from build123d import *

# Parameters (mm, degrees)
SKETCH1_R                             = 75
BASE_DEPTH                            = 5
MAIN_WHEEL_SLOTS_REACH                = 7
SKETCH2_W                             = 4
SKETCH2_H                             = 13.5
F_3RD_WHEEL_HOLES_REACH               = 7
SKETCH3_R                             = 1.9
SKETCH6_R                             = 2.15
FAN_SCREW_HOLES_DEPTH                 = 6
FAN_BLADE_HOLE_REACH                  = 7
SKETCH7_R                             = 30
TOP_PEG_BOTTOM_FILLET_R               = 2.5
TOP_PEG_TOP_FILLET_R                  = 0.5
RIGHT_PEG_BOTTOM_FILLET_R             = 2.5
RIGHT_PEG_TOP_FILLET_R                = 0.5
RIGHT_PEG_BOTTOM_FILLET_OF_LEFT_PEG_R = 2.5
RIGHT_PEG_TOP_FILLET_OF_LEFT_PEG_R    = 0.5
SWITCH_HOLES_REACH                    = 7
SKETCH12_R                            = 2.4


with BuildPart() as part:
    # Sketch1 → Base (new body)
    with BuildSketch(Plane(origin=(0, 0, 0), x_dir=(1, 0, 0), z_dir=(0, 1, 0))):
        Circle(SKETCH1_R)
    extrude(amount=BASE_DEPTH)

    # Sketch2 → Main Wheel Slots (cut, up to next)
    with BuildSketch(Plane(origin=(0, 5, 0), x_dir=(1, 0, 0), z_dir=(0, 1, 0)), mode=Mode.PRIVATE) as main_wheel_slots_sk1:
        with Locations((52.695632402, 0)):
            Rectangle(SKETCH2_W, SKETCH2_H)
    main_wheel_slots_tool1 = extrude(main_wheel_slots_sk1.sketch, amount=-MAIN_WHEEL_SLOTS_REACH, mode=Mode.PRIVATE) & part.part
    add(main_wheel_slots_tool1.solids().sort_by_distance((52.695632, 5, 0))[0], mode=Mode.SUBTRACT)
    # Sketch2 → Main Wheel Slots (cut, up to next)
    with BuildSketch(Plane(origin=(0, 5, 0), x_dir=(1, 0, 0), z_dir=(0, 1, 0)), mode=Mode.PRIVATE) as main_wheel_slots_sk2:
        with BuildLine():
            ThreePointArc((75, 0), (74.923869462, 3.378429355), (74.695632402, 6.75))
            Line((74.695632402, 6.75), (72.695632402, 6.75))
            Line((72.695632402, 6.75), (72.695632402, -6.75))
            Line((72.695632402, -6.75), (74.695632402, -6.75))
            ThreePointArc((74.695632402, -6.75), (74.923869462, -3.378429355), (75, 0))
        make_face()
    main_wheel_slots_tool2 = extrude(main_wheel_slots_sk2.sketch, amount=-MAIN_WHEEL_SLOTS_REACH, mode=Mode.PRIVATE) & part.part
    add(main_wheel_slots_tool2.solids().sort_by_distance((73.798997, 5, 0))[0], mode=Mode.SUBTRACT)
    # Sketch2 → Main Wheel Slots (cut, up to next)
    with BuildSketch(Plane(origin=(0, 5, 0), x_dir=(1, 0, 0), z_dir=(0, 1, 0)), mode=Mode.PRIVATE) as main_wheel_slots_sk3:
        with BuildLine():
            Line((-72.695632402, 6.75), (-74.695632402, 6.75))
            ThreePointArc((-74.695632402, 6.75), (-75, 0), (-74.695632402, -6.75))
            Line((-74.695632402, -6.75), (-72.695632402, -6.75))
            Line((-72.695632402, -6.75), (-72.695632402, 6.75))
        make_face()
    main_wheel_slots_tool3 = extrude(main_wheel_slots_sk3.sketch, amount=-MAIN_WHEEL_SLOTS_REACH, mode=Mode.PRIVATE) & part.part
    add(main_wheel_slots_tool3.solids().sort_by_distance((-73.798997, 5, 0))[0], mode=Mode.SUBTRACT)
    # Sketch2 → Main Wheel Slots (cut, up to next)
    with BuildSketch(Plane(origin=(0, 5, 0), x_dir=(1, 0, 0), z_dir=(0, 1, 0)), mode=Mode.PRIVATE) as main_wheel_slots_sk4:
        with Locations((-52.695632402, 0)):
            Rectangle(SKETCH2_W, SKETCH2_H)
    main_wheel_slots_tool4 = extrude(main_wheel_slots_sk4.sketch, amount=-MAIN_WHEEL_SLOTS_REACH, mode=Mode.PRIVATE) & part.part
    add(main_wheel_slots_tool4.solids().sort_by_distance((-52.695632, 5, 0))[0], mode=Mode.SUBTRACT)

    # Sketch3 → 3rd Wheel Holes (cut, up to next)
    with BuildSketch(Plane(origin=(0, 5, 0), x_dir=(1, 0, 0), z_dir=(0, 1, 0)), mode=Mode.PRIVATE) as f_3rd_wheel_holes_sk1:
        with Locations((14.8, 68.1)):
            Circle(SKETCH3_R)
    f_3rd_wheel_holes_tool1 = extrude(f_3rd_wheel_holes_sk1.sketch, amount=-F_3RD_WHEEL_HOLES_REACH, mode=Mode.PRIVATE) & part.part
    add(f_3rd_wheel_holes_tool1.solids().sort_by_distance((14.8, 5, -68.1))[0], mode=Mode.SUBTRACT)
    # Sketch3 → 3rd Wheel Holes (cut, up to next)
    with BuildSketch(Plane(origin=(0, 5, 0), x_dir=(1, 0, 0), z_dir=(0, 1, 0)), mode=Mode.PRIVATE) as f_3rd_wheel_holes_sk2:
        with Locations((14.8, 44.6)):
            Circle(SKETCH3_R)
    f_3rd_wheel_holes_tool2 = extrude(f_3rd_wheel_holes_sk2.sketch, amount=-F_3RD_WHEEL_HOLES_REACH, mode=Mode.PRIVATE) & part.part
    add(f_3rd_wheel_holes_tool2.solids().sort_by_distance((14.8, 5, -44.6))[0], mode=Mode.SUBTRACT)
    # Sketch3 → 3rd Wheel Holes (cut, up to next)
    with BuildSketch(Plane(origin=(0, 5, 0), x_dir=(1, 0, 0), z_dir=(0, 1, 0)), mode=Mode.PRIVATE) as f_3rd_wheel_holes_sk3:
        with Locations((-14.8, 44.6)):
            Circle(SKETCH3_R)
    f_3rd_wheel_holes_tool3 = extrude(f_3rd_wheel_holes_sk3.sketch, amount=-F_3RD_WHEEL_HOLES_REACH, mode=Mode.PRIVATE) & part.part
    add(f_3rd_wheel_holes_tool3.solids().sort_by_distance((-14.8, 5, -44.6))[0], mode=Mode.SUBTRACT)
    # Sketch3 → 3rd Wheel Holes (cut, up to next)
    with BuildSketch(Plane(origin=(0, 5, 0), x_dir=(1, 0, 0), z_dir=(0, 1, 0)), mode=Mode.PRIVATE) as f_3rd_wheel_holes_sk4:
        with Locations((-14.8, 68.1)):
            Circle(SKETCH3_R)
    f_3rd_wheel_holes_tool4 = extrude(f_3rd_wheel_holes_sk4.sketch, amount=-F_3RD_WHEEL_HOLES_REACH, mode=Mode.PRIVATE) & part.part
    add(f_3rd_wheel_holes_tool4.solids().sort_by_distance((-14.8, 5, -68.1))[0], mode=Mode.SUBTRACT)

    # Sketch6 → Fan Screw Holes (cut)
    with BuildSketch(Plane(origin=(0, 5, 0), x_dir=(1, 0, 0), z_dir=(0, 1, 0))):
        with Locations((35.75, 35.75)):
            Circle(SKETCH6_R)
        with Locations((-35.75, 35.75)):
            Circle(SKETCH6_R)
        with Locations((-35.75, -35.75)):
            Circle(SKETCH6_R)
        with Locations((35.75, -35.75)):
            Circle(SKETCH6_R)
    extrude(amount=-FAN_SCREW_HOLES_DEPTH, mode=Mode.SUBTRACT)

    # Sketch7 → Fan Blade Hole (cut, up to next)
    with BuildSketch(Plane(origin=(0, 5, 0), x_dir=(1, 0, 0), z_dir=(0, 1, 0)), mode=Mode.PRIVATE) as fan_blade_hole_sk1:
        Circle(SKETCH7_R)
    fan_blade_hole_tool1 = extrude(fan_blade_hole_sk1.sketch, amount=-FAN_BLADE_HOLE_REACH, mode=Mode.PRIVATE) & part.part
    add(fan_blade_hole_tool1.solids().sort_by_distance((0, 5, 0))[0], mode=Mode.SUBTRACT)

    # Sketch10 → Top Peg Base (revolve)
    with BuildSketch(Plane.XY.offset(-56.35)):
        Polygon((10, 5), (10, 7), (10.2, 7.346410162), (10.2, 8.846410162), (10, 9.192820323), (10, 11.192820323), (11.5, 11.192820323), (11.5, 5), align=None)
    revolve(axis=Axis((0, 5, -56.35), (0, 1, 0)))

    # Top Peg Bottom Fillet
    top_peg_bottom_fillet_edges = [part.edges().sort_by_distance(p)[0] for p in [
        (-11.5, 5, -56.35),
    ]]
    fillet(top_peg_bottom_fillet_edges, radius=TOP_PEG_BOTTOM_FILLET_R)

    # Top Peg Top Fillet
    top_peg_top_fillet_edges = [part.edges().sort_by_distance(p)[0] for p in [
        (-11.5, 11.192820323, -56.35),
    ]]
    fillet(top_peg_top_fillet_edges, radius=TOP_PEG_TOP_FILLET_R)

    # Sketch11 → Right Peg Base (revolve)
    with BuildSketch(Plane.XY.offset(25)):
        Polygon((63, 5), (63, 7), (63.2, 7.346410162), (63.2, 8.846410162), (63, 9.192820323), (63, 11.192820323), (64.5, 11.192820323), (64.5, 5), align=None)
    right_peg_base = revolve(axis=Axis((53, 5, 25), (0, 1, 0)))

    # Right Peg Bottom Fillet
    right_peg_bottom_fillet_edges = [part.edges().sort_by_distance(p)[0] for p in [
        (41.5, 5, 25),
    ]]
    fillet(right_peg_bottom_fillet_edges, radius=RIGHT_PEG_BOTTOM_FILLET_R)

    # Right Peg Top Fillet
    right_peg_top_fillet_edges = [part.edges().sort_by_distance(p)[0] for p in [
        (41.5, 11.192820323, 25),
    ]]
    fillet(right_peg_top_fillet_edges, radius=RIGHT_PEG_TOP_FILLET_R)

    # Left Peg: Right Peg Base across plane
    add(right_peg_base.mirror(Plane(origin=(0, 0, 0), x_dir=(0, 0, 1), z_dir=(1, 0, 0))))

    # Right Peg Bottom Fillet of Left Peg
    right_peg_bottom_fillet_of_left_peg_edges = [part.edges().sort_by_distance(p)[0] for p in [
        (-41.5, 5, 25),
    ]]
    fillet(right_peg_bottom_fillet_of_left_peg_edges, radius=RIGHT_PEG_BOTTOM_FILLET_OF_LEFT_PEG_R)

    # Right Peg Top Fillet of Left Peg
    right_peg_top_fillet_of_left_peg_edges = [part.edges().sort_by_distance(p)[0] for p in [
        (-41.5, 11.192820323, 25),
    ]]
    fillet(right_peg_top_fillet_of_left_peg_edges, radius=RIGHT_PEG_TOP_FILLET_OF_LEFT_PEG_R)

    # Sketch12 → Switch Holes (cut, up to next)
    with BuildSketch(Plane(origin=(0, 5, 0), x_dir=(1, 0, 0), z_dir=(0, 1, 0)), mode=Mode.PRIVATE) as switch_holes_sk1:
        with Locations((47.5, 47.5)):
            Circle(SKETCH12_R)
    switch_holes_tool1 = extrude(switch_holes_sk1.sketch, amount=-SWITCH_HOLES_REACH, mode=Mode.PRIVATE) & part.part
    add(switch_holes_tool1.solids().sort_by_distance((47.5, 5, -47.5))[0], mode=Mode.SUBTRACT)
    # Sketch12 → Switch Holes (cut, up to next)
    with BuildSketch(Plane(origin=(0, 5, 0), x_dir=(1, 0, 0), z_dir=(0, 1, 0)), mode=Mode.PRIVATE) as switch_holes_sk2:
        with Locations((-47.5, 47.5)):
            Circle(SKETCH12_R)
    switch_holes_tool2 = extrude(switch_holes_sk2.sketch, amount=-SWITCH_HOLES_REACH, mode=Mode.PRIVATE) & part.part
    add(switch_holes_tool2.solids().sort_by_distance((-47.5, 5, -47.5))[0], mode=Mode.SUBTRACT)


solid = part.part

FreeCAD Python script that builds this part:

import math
import FreeCAD as App
import Part
import Sketcher
Q = App.Units.Quantity


def edges_at(feature, points):
    """Names of the edges that pass closest to the given points."""
    edges = feature.Shape.Edges
    near = lambda p: min(range(len(edges)), key=lambda i: edges[i].distToShape(Part.Vertex(*p))[0])
    return sorted({f"Edge{near(p) + 1}" for p in points})


def add_polygon(sketch, points):
    """Adds a closed chain of lines whose ends are joined by coincident constraints."""
    first, n = sketch.GeometryCount, len(points)
    for a, b in zip(points, points[1:] + points[:1]):
        sketch.addGeometry(Part.LineSegment(App.Vector(*a, 0), App.Vector(*b, 0)), False)
    for i in range(n):
        sketch.addConstraint(Sketcher.Constraint("Coincident", first + i, 2, first + (i + 1) % n, 1))

doc = App.newDocument("Part")
body = doc.addObject("PartDesign::Body", "Body")

# Sketch on XZ plane
sketch1 = body.newObject("Sketcher::SketchObject", "Sketch")
sketch1.AttachmentSupport = (doc.getObject("XZ_Plane"), [""])
sketch1.MapMode = "FlatFace"
sketch1.addGeometry(Part.Circle(App.Vector(0, 0, 0), App.Vector(0, 0, 1), 75), False)
sketch1.addConstraint([
    Sketcher.Constraint("Coincident", 0, 3, -1, 1),
    Sketcher.Constraint("Diameter", 0, 150.0),
])
pad1 = body.newObject("PartDesign::Pad", "Pad")
pad1.Profile = sketch1
pad1.Length = 5
pad1.Reversed = True

# Sketch on XZ plane
sketch2 = body.newObject("Sketcher::SketchObject", "Sketch001")
sketch2.AttachmentSupport = (doc.getObject("XZ_Plane"), [""])
sketch2.MapMode = "FlatFace"
sketch2.AttachmentOffset = App.Placement(App.Vector(0, 0, -5), App.Rotation())
add_polygon(sketch2, [(50.7, -6.8), (50.7, 6.8), (54.7, 6.8), (54.7, -6.8)])  # lines 0-3
sketch2.addConstraint([
    Sketcher.Constraint("Vertical", 0),
    Sketcher.Constraint("Horizontal", 1),
    Sketcher.Constraint("Vertical", 2),
    Sketcher.Constraint("Horizontal", 3),
    Sketcher.Constraint("DistanceX", 1, 1, 1, 2, 4.0),
    Sketcher.Constraint("DistanceY", 0, 1, 0, 2, 13.5),
    Sketcher.Constraint("DistanceY", -1, 1, 0, 2, 6.75),
    Sketcher.Constraint("DistanceX", -1, 1, 0, 2, 50.695632),
])
pocket1 = body.newObject("PartDesign::Pocket", "Pocket")
pocket1.Profile = sketch2
pocket1.Type = "UpToFirst"
pocket1.Reversed = True

# Sketch on XZ plane
sketch3 = body.newObject("Sketcher::SketchObject", "Sketch002")
sketch3.AttachmentSupport = (doc.getObject("XZ_Plane"), [""])
sketch3.MapMode = "FlatFace"
sketch3.AttachmentOffset = App.Placement(App.Vector(0, 0, -5), App.Rotation())
sketch3.addGeometry([
    Part.ArcOfCircle(Part.Circle(App.Vector(0, 0, 0), App.Vector(0, 0, 1), 75), math.radians(-5.16), math.radians(0)),  # 0
    Part.LineSegment(App.Vector(74.7, -6.8, 0), App.Vector(72.7, -6.8, 0)),  # 1
    Part.LineSegment(App.Vector(72.7, -6.8, 0), App.Vector(72.7, 6.8, 0)),  # 2
    Part.LineSegment(App.Vector(72.7, 6.8, 0), App.Vector(74.7, 6.8, 0)),  # 3
    Part.ArcOfCircle(Part.Circle(App.Vector(0, 0, 0), App.Vector(0, 0, 1), 75), math.radians(0), math.radians(5.16)),  # 4
], False)
sketch3.addConstraint([
    Sketcher.Constraint("Coincident", 0, 1, 1, 1),
    Sketcher.Constraint("Coincident", 1, 2, 2, 1),
    Sketcher.Constraint("Coincident", 2, 2, 3, 1),
    Sketcher.Constraint("Coincident", 3, 2, 4, 2),
    Sketcher.Constraint("Tangent", 4, 1, 0, 2),
    Sketcher.Constraint("Horizontal", 1),
    Sketcher.Constraint("Vertical", 2),
    Sketcher.Constraint("Horizontal", 3),
    Sketcher.Constraint("Coincident", 0, 3, -1, 1),
    Sketcher.Constraint("Equal", 0, 4),
    Sketcher.Constraint("PointOnObject", 4, 1, -1),
    Sketcher.Constraint("Vertical", 0, 1, 3, 2),
    Sketcher.Constraint("Radius", 0, 74.999999),
    Sketcher.Constraint("DistanceX", 1, 2, 1, 1, 2.0),
    Sketcher.Constraint("DistanceY", 2, 1, 2, 2, 13.5),
])
pocket2 = body.newObject("PartDesign::Pocket", "Pocket001")
pocket2.Profile = sketch3
pocket2.Type = "UpToFirst"
pocket2.Reversed = True

# Sketch on XZ plane
sketch4 = body.newObject("Sketcher::SketchObject", "Sketch003")
sketch4.AttachmentSupport = (doc.getObject("XZ_Plane"), [""])
sketch4.MapMode = "FlatFace"
sketch4.AttachmentOffset = App.Placement(App.Vector(0, 0, -5), App.Rotation())
sketch4.addGeometry([
    Part.LineSegment(App.Vector(-72.7, -6.8, 0), App.Vector(-74.7, -6.8, 0)),
    Part.ArcOfCircle(Part.Circle(App.Vector(0, 0, 0), App.Vector(0, 0, 1), 75), math.radians(174.84), math.radians(185.16)),
    Part.LineSegment(App.Vector(-74.7, 6.8, 0), App.Vector(-72.7, 6.8, 0)),
    Part.LineSegment(App.Vector(-72.7, 6.8, 0), App.Vector(-72.7, -6.8, 0)),
], False)
sketch4.addConstraint([
    Sketcher.Constraint("Coincident", 0, 2, 1, 2),
    Sketcher.Constraint("Coincident", 1, 1, 2, 1),
    Sketcher.Constraint("Coincident", 2, 2, 3, 1),
    Sketcher.Constraint("Coincident", 3, 2, 0, 1),
    Sketcher.Constraint("Horizontal", 0),
    Sketcher.Constraint("Horizontal", 2),
    Sketcher.Constraint("Vertical", 3),
    Sketcher.Constraint("Coincident", 1, 3, -1, 1),
    Sketcher.Constraint("Vertical", 0, 2, 1, 1),
    Sketcher.Constraint("Radius", 1, 75.0),
    Sketcher.Constraint("DistanceX", 0, 2, 0, 1, 2.0),
    Sketcher.Constraint("DistanceY", 3, 2, 3, 1, 13.5),
])
pocket3 = body.newObject("PartDesign::Pocket", "Pocket002")
pocket3.Profile = sketch4
pocket3.Type = "UpToFirst"
pocket3.Reversed = True

# Sketch on XZ plane
sketch5 = body.newObject("Sketcher::SketchObject", "Sketch004")
sketch5.AttachmentSupport = (doc.getObject("XZ_Plane"), [""])
sketch5.MapMode = "FlatFace"
sketch5.AttachmentOffset = App.Placement(App.Vector(0, 0, -5), App.Rotation())
add_polygon(sketch5, [(-54.7, -6.8), (-54.7, 6.8), (-50.7, 6.8), (-50.7, -6.8)])  # lines 0-3
sketch5.addConstraint([
    Sketcher.Constraint("Vertical", 0),
    Sketcher.Constraint("Horizontal", 1),
    Sketcher.Constraint("Vertical", 2),
    Sketcher.Constraint("Horizontal", 3),
    Sketcher.Constraint("DistanceX", 1, 1, 1, 2, 4.0),
    Sketcher.Constraint("DistanceY", 0, 1, 0, 2, 13.5),
    Sketcher.Constraint("DistanceY", -1, 1, 0, 2, 6.75),
    Sketcher.Constraint("DistanceX", 0, 2, -1, 1, 54.695632),
])
pocket4 = body.newObject("PartDesign::Pocket", "Pocket003")
pocket4.Profile = sketch5
pocket4.Type = "UpToFirst"
pocket4.Reversed = True

# Sketch on XZ plane
sketch6 = body.newObject("Sketcher::SketchObject", "Sketch005")
sketch6.AttachmentSupport = (doc.getObject("XZ_Plane"), [""])
sketch6.MapMode = "FlatFace"
sketch6.AttachmentOffset = App.Placement(App.Vector(0, 0, -5), App.Rotation())
sketch6.addGeometry(Part.Circle(App.Vector(14.8, -68.1, 0), App.Vector(0, 0, 1), 1.9), False)
sketch6.addConstraint([
    Sketcher.Constraint("Diameter", 0, 3.8),
    Sketcher.Constraint("DistanceX", -1, 1, 0, 3, 14.8),
    Sketcher.Constraint("DistanceY", 0, 3, -1, 1, 68.1),
])
pocket5 = body.newObject("PartDesign::Pocket", "Pocket004")
pocket5.Profile = sketch6
pocket5.Type = "UpToFirst"
pocket5.Reversed = True

# Sketch on XZ plane
sketch7 = body.newObject("Sketcher::SketchObject", "Sketch006")
sketch7.AttachmentSupport = (doc.getObject("XZ_Plane"), [""])
sketch7.MapMode = "FlatFace"
sketch7.AttachmentOffset = App.Placement(App.Vector(0, 0, -5), App.Rotation())
sketch7.addGeometry(Part.Circle(App.Vector(14.8, -44.6, 0), App.Vector(0, 0, 1), 1.9), False)
sketch7.addConstraint([
    Sketcher.Constraint("Diameter", 0, 3.8),
    Sketcher.Constraint("DistanceX", -1, 1, 0, 3, 14.8),
    Sketcher.Constraint("DistanceY", 0, 3, -1, 1, 44.6),
])
pocket6 = body.newObject("PartDesign::Pocket", "Pocket005")
pocket6.Profile = sketch7
pocket6.Type = "UpToFirst"
pocket6.Reversed = True

# Sketch on XZ plane
sketch8 = body.newObject("Sketcher::SketchObject", "Sketch007")
sketch8.AttachmentSupport = (doc.getObject("XZ_Plane"), [""])
sketch8.MapMode = "FlatFace"
sketch8.AttachmentOffset = App.Placement(App.Vector(0, 0, -5), App.Rotation())
sketch8.addGeometry(Part.Circle(App.Vector(-14.8, -44.6, 0), App.Vector(0, 0, 1), 1.9), False)
sketch8.addConstraint([
    Sketcher.Constraint("Diameter", 0, 3.8),
    Sketcher.Constraint("DistanceX", 0, 3, -1, 1, 14.8),
    Sketcher.Constraint("DistanceY", 0, 3, -1, 1, 44.6),
])
pocket7 = body.newObject("PartDesign::Pocket", "Pocket006")
pocket7.Profile = sketch8
pocket7.Type = "UpToFirst"
pocket7.Reversed = True

# Sketch on XZ plane
sketch9 = body.newObject("Sketcher::SketchObject", "Sketch008")
sketch9.AttachmentSupport = (doc.getObject("XZ_Plane"), [""])
sketch9.MapMode = "FlatFace"
sketch9.AttachmentOffset = App.Placement(App.Vector(0, 0, -5), App.Rotation())
sketch9.addGeometry(Part.Circle(App.Vector(-14.8, -68.1, 0), App.Vector(0, 0, 1), 1.9), False)
sketch9.addConstraint([
    Sketcher.Constraint("Diameter", 0, 3.8),
    Sketcher.Constraint("DistanceX", 0, 3, -1, 1, 14.8),
    Sketcher.Constraint("DistanceY", 0, 3, -1, 1, 68.1),
])
pocket8 = body.newObject("PartDesign::Pocket", "Pocket007")
pocket8.Profile = sketch9
pocket8.Type = "UpToFirst"
pocket8.Reversed = True

# Sketch on XZ plane
sketch10 = body.newObject("Sketcher::SketchObject", "Sketch009")
sketch10.AttachmentSupport = (doc.getObject("XZ_Plane"), [""])
sketch10.MapMode = "FlatFace"
sketch10.AttachmentOffset = App.Placement(App.Vector(0, 0, -5), App.Rotation())
sketch10.addGeometry([
    Part.Circle(App.Vector(35.8, -35.8, 0), App.Vector(0, 0, 1), 2.1),
    Part.Circle(App.Vector(-35.8, -35.8, 0), App.Vector(0, 0, 1), 2.1),
    Part.Circle(App.Vector(-35.8, 35.8, 0), App.Vector(0, 0, 1), 2.1),
    Part.Circle(App.Vector(35.8, 35.8, 0), App.Vector(0, 0, 1), 2.1),
], False)
sketch10.addConstraint([
    Sketcher.Constraint("Equal", 0, 1),
    Sketcher.Constraint("Equal", 1, 2),
    Sketcher.Constraint("Equal", 2, 3),
    Sketcher.Constraint("Symmetric", 0, 3, 2, 3, -1, 1),
    Sketcher.Constraint("Symmetric", 1, 3, 3, 3, -1, 1),
    Sketcher.Constraint("Symmetric", 0, 3, 1, 3, -2),
    Sketcher.Constraint("Diameter", 0, 4.3),
    Sketcher.Constraint("DistanceX", 1, 3, 0, 3, 71.5),
    Sketcher.Constraint("DistanceY", 1, 3, 2, 3, 71.5),
])
pocket9 = body.newObject("PartDesign::Pocket", "Pocket008")
pocket9.Profile = sketch10
pocket9.Length = 6
pocket9.Reversed = True

# Sketch on XZ plane
sketch11 = body.newObject("Sketcher::SketchObject", "Sketch010")
sketch11.AttachmentSupport = (doc.getObject("XZ_Plane"), [""])
sketch11.MapMode = "FlatFace"
sketch11.AttachmentOffset = App.Placement(App.Vector(0, 0, -5), App.Rotation())
sketch11.addGeometry(Part.Circle(App.Vector(0, 0, 0), App.Vector(0, 0, 1), 30), False)
sketch11.addConstraint([
    Sketcher.Constraint("Coincident", 0, 3, -1, 1),
    Sketcher.Constraint("Diameter", 0, 60.0),
])
pocket10 = body.newObject("PartDesign::Pocket", "Pocket009")
pocket10.Profile = sketch11
pocket10.Type = "UpToFirst"
pocket10.Reversed = True

# Sketch on XY plane
sketch12 = body.newObject("Sketcher::SketchObject", "Sketch011")
sketch12.AttachmentSupport = (doc.getObject("XY_Plane"), [""])
sketch12.MapMode = "FlatFace"
sketch12.AttachmentOffset = App.Placement(App.Vector(0, 0, -56.35), App.Rotation())
add_polygon(sketch12, [(10, 7), (10, 5), (11.5, 5), (11.5, 11.19), (10, 11.19), (10, 9.19), (10.2, 8.85), (10.2, 7.35)])  # lines 0-7
sketch12.addConstraint([
    Sketcher.Constraint("Vertical", 0),
    Sketcher.Constraint("Horizontal", 1),
    Sketcher.Constraint("Vertical", 2),
    Sketcher.Constraint("Horizontal", 3),
    Sketcher.Constraint("Vertical", 4),
    Sketcher.Constraint("Vertical", 6),
    Sketcher.Constraint("Vertical", 0, 2, 3, 2),
    Sketcher.Constraint("Equal", 0, 4),
    Sketcher.Constraint("Equal", 3, 6),
    Sketcher.Constraint("Equal", 5, 7),
    Sketcher.Constraint("DistanceY", 0, 2, 0, 1, 2.0),
    Sketcher.Constraint("Angle", 5, Q("-60 deg")),
    Sketcher.Constraint("DistanceX", 1, 1, 1, 2, 1.5),
    Sketcher.Constraint("DistanceX", -1, 1, 0, 2, 10.0),
    Sketcher.Constraint("DistanceY", -1, 1, 0, 2, 5.0),
    Sketcher.Constraint("Distance", 5, 0.4),
])
revolution = body.newObject("PartDesign::Revolution", "Revolution")
revolution.Profile = sketch12
revolution.ReferenceAxis = (sketch12, ["V_Axis"])
revolution.Angle = 360
doc.recompute()

fillet = body.newObject("PartDesign::Fillet", "Fillet")
fillet.Base = (revolution, edges_at(revolution, [(-11.5, 5, -56.35)]))
fillet.Radius = 2.5
doc.recompute()

fillet2 = body.newObject("PartDesign::Fillet", "Fillet001")
fillet2.Base = (fillet, edges_at(fillet, [(-11.5, 11.193, -56.35)]))
fillet2.Radius = 0.5

# Sketch on XY plane
sketch13 = body.newObject("Sketcher::SketchObject", "Sketch012")
sketch13.AttachmentSupport = (doc.getObject("XY_Plane"), [""])
sketch13.MapMode = "FlatFace"
sketch13.AttachmentOffset = App.Placement(App.Vector(0, 0, 25), App.Rotation())
add_polygon(sketch13, [(63, 7), (63, 5), (64.5, 5), (64.5, 11.19), (63, 11.19), (63, 9.19), (63.2, 8.85), (63.2, 7.35)])  # lines 0-7
sketch13.addGeometry(Part.LineSegment(App.Vector(53, 5, 0), App.Vector(53, 11.19, 0)), True)  # axis
sketch13.addConstraint([
    Sketcher.Constraint("Vertical", 0),
    Sketcher.Constraint("Horizontal", 1),
    Sketcher.Constraint("Vertical", 2),
    Sketcher.Constraint("Horizontal", 3),
    Sketcher.Constraint("Vertical", 4),
    Sketcher.Constraint("Vertical", 6),
    Sketcher.Constraint("Vertical", 8),
    Sketcher.Constraint("Horizontal", 1, 2, 8, 1),
    Sketcher.Constraint("Horizontal", 3, 2, 8, 2),
    Sketcher.Constraint("Vertical", 0, 2, 3, 2),
    Sketcher.Constraint("Equal", 0, 4),
    Sketcher.Constraint("Equal", 3, 6),
    Sketcher.Constraint("Equal", 5, 7),
    Sketcher.Constraint("DistanceY", 0, 2, 0, 1, 2.0),
    Sketcher.Constraint("Angle", 5, Q("-60 deg")),
    Sketcher.Constraint("DistanceX", 1, 1, 1, 2, 1.5),
    Sketcher.Constraint("DistanceX", -1, 1, 0, 2, 63.0),
    Sketcher.Constraint("DistanceY", -1, 1, 0, 2, 5.0),
    Sketcher.Constraint("DistanceX", -1, 1, 8, 1, 53.0),
    Sketcher.Constraint("Distance", 5, 0.4),
])
revolution2 = body.newObject("PartDesign::Revolution", "Revolution001")
revolution2.Profile = sketch13
revolution2.ReferenceAxis = (sketch13, ["Axis0"])
revolution2.Angle = 360
doc.recompute()

fillet3 = body.newObject("PartDesign::Fillet", "Fillet002")
fillet3.Base = (revolution2, edges_at(revolution2, [(41.5, 5, 25)]))
fillet3.Radius = 2.5
doc.recompute()

fillet4 = body.newObject("PartDesign::Fillet", "Fillet003")
fillet4.Base = (fillet3, edges_at(fillet3, [(41.5, 11.193, 25)]))
fillet4.Radius = 0.5
doc.recompute()

mirrored = body.newObject("PartDesign::Mirrored", "Mirrored")
mirrored.Originals = [revolution2]
mirrored.MirrorPlane = (doc.getObject("YZ_Plane"), [""])
body.Tip = mirrored
doc.recompute()

fillet5 = body.newObject("PartDesign::Fillet", "Fillet004")
fillet5.Base = (mirrored, edges_at(mirrored, [(-41.5, 5, 25)]))
fillet5.Radius = 2.5
doc.recompute()

fillet6 = body.newObject("PartDesign::Fillet", "Fillet005")
fillet6.Base = (fillet5, edges_at(fillet5, [(-41.5, 11.193, 25)]))
fillet6.Radius = 0.5

# Sketch on XZ plane
sketch14 = body.newObject("Sketcher::SketchObject", "Sketch013")
sketch14.AttachmentSupport = (doc.getObject("XZ_Plane"), [""])
sketch14.MapMode = "FlatFace"
sketch14.AttachmentOffset = App.Placement(App.Vector(0, 0, -5), App.Rotation())
sketch14.addGeometry(Part.Circle(App.Vector(47.5, -47.5, 0), App.Vector(0, 0, 1), 2.4), False)
sketch14.addConstraint([
    Sketcher.Constraint("Diameter", 0, 4.8),
    Sketcher.Constraint("DistanceX", -1, 1, 0, 3, 47.5),
    Sketcher.Constraint("DistanceY", 0, 3, -1, 1, 47.5),
])
pocket11 = body.newObject("PartDesign::Pocket", "Pocket010")
pocket11.Profile = sketch14
pocket11.Type = "UpToFirst"
pocket11.Reversed = True

# Sketch on XZ plane
sketch15 = body.newObject("Sketcher::SketchObject", "Sketch014")
sketch15.AttachmentSupport = (doc.getObject("XZ_Plane"), [""])
sketch15.MapMode = "FlatFace"
sketch15.AttachmentOffset = App.Placement(App.Vector(0, 0, -5), App.Rotation())
sketch15.addGeometry(Part.Circle(App.Vector(-47.5, -47.5, 0), App.Vector(0, 0, 1), 2.4), False)
sketch15.addConstraint([
    Sketcher.Constraint("Diameter", 0, 4.8),
    Sketcher.Constraint("DistanceX", 0, 3, -1, 1, 47.5),
    Sketcher.Constraint("DistanceY", 0, 3, -1, 1, 47.5),
])
pocket12 = body.newObject("PartDesign::Pocket", "Pocket011")
pocket12.Profile = sketch15
pocket12.Type = "UpToFirst"
pocket12.Reversed = True

doc.recompute()
